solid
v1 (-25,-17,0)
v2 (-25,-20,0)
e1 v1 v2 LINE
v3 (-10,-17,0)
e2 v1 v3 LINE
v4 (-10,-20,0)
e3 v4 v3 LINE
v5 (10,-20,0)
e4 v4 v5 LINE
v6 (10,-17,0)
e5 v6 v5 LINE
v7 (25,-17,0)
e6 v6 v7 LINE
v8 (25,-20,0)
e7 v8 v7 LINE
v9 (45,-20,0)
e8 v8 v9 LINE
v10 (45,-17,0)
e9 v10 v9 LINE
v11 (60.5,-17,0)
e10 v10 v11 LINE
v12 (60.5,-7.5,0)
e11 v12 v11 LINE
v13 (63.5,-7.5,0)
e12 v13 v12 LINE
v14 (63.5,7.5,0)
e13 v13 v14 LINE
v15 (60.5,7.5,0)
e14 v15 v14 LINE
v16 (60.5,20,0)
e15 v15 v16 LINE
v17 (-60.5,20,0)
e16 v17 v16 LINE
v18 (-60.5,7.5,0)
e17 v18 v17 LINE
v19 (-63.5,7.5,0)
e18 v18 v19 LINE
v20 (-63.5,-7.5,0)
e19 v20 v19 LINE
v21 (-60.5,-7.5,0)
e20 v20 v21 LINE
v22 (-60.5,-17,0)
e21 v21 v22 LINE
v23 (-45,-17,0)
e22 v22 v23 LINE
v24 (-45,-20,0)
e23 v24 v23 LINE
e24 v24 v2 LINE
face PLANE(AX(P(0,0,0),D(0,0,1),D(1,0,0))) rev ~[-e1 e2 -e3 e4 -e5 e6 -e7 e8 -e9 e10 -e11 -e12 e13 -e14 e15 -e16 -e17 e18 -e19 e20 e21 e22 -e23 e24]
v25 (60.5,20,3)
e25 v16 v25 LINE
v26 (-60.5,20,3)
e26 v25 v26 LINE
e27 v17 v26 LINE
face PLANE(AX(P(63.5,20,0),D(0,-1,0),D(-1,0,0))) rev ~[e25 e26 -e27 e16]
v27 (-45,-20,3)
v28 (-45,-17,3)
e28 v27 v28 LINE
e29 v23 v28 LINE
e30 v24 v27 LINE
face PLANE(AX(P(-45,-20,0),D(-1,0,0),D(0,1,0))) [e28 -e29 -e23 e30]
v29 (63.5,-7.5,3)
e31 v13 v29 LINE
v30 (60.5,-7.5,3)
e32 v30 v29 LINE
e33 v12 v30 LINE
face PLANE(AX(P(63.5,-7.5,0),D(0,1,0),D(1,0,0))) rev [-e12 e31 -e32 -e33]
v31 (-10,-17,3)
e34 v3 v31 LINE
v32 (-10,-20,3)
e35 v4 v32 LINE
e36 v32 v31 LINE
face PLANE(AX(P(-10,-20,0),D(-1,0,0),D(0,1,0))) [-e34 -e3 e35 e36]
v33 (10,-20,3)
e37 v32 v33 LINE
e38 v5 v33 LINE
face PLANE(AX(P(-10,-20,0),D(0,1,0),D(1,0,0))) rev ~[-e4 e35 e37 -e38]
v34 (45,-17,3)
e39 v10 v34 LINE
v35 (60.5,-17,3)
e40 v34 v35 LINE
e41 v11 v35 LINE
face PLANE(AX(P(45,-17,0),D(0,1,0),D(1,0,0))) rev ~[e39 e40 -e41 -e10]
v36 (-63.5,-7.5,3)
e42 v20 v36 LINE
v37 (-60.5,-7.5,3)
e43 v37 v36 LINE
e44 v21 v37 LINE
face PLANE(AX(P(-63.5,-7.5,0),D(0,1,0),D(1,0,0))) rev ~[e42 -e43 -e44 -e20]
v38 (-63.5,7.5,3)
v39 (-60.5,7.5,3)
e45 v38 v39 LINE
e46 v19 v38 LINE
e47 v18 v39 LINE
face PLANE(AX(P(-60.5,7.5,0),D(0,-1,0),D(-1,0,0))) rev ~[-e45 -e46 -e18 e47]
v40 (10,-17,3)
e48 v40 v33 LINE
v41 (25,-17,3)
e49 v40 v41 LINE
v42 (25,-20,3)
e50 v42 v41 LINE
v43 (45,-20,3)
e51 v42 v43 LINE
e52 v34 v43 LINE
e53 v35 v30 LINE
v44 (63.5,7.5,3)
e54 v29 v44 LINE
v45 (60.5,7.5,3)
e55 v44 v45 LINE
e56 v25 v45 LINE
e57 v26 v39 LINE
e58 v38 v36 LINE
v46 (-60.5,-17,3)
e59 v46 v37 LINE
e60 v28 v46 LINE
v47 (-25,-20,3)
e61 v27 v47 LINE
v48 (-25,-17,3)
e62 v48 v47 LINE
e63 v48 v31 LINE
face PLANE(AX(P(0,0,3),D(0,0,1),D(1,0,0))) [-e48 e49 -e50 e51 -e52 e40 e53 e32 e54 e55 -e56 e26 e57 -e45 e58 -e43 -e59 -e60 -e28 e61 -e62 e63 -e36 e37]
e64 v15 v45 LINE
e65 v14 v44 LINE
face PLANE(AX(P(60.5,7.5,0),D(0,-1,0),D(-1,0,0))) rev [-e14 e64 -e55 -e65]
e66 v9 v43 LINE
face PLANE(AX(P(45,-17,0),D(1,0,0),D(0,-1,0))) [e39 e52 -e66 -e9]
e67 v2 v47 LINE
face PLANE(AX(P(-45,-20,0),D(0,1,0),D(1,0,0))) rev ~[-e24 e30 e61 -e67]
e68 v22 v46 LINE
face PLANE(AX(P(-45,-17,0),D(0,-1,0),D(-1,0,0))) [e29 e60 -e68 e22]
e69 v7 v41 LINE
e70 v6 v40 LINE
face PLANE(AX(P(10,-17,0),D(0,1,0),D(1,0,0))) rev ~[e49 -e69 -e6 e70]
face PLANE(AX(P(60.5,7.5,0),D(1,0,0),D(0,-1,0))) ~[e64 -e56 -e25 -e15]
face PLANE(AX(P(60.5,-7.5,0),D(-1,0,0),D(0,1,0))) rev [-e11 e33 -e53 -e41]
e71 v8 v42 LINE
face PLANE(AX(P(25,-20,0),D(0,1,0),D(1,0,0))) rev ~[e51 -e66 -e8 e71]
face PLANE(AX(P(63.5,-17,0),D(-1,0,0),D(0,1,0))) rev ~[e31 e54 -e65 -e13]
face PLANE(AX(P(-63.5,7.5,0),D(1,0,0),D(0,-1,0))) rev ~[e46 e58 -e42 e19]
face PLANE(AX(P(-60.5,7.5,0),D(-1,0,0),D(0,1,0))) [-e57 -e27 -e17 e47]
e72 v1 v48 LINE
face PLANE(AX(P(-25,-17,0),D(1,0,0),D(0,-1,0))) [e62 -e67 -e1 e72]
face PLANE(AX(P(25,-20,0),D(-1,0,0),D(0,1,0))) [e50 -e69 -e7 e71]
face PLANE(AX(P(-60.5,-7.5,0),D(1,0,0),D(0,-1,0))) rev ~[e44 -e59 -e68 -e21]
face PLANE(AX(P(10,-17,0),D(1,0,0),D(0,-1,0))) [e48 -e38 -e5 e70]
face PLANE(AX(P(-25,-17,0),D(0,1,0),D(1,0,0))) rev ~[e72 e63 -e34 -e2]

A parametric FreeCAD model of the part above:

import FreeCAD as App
import Part
import Sketcher
from FreeCAD import Vector
Q = App.Units.Quantity

doc = App.newDocument("Part")
body = doc.addObject("PartDesign::Body", "Body")

# Sketch on XY plane
sketch1 = body.newObject("Sketcher::SketchObject", "Sketch")
sketch1.AttachmentSupport = (doc.getObject("XY_Plane"), [""])
sketch1.MapMode = "FlatFace"
sketch1.addGeometry(Part.LineSegment(Vector(-45, -17, 0), Vector(-45, -20, 0)), False)
sketch1.addGeometry(Part.LineSegment(Vector(-45, -20, 0), Vector(-25, -20, 0)), False)
sketch1.addGeometry(Part.LineSegment(Vector(-25, -20, 0), Vector(-25, -17, 0)), False)
sketch1.addGeometry(Part.LineSegment(Vector(-25, -17, 0), Vector(-10, -17, 0)), False)
sketch1.addGeometry(Part.LineSegment(Vector(-10, -17, 0), Vector(-10, -20, 0)), False)
sketch1.addGeometry(Part.LineSegment(Vector(-10, -20, 0), Vector(10, -20, 0)), False)
sketch1.addGeometry(Part.LineSegment(Vector(10, -20, 0), Vector(10, -17, 0)), False)
sketch1.addGeometry(Part.LineSegment(Vector(10, -17, 0), Vector(25, -17, 0)), False)
sketch1.addGeometry(Part.LineSegment(Vector(25, -17, 0), Vector(25, -20, 0)), False)
sketch1.addGeometry(Part.LineSegment(Vector(25, -20, 0), Vector(45, -20, 0)), False)
sketch1.addGeometry(Part.LineSegment(Vector(45, -20, 0), Vector(45, -17, 0)), False)
sketch1.addGeometry(Part.LineSegment(Vector(45, -17, 0), Vector(63.5, -17, 0)), False)
sketch1.addGeometry(Part.LineSegment(Vector(63.5, -17, 0), Vector(63.5, 20, 0)), False)
sketch1.addGeometry(Part.LineSegment(Vector(63.5, 20, 0), Vector(-63.5, 20, 0)), False)
sketch1.addGeometry(Part.LineSegment(Vector(-63.5, 20, 0), Vector(-63.5, -17, 0)), False)
sketch1.addGeometry(Part.LineSegment(Vector(-63.5, -17, 0), Vector(-45, -17, 0)), False)
sketch1.addConstraint(Sketcher.Constraint("Coincident", 0, 2, 1, 1))
sketch1.addConstraint(Sketcher.Constraint("Coincident", 1, 2, 2, 1))
sketch1.addConstraint(Sketcher.Constraint("Coincident", 2, 2, 3, 1))
sketch1.addConstraint(Sketcher.Constraint("Coincident", 3, 2, 4, 1))
sketch1.addConstraint(Sketcher.Constraint("Coincident", 4, 2, 5, 1))
sketch1.addConstraint(Sketcher.Constraint("Coincident", 5, 2, 6, 1))
sketch1.addConstraint(Sketcher.Constraint("Coincident", 6, 2, 7, 1))
sketch1.addConstraint(Sketcher.Constraint("Coincident", 7, 2, 8, 1))
sketch1.addConstraint(Sketcher.Constraint("Coincident", 8, 2, 9, 1))
sketch1.addConstraint(Sketcher.Constraint("Coincident", 9, 2, 10, 1))
sketch1.addConstraint(Sketcher.Constraint("Coincident", 10, 2, 11, 1))
sketch1.addConstraint(Sketcher.Constraint("Coincident", 11, 2, 12, 1))
sketch1.addConstraint(Sketcher.Constraint("Coincident", 12, 2, 13, 1))
sketch1.addConstraint(Sketcher.Constraint("Coincident", 13, 2, 14, 1))
sketch1.addConstraint(Sketcher.Constraint("Coincident", 14, 2, 15, 1))
sketch1.addConstraint(Sketcher.Constraint("Coincident", 15, 2, 0, 1))
sketch1.addConstraint(Sketcher.Constraint("Vertical", 0))
sketch1.addConstraint(Sketcher.Constraint("Horizontal", 1))
sketch1.addConstraint(Sketcher.Constraint("Vertical", 2))
sketch1.addConstraint(Sketcher.Constraint("Horizontal", 3))
sketch1.addConstraint(Sketcher.Constraint("Vertical", 4))
sketch1.addConstraint(Sketcher.Constraint("Horizontal", 5))
sketch1.addConstraint(Sketcher.Constraint("Vertical", 6))
sketch1.addConstraint(Sketcher.Constraint("Horizontal", 7))
sketch1.addConstraint(Sketcher.Constraint("Vertical", 8))
sketch1.addConstraint(Sketcher.Constraint("Horizontal", 9))
sketch1.addConstraint(Sketcher.Constraint("Vertical", 10))
sketch1.addConstraint(Sketcher.Constraint("Horizontal", 11))
sketch1.addConstraint(Sketcher.Constraint("Vertical", 12))
sketch1.addConstraint(Sketcher.Constraint("Horizontal", 13))
sketch1.addConstraint(Sketcher.Constraint("Vertical", 14))
sketch1.addConstraint(Sketcher.Constraint("Horizontal", 15))
sketch1.addConstraint(Sketcher.Constraint("Symmetric", 3, 2, 6, 2, -2))
sketch1.addConstraint(Sketcher.Constraint("Symmetric", 1, 2, 8, 2, -2))
sketch1.addConstraint(Sketcher.Constraint("Symmetric", 11, 2, 14, 2, -2))
sketch1.addConstraint(Sketcher.Constraint("Horizontal", 1, 2, 4, 2))
sketch1.addConstraint(Sketcher.Constraint("Horizontal", 7, 2, 10, 2))
sketch1.addConstraint(Sketcher.Constraint("Equal", 1, 5))
sketch1.addConstraint(Sketcher.Constraint("Equal", 5, 9))
sketch1.addConstraint(Sketcher.Constraint("DistanceX", 1, 1, 1, 2, Q("20 mm")))
sketch1.addConstraint(Sketcher.Constraint("DistanceX", 3, 1, 3, 2, Q("15 mm")))
sketch1.addConstraint(Sketcher.Constraint("DistanceX", 13, 2, 13, 1, Q("127 mm")))
sketch1.addConstraint(Sketcher.Constraint("DistanceY", 0, 2, 0, 1, Q("3 mm")))
sketch1.addConstraint(Sketcher.Constraint("DistanceY", 0, 2, -1, 1, Q("20 mm")))
sketch1.addConstraint(Sketcher.Constraint("DistanceY", -1, 1, 12, 2, Q("20 mm")))
pad1 = body.newObject("PartDesign::Pad", "Pad")
pad1.Profile = sketch1
pad1.Length = 3

# Sketch on XY plane
sketch2 = body.newObject("Sketcher::SketchObject", "Sketch001")
sketch2.AttachmentSupport = (doc.getObject("XY_Plane"), [""])
sketch2.MapMode = "FlatFace"
sketch2.addGeometry(Part.LineSegment(Vector(-63.5, -7.5, 0), Vector(-63.5, -17, 0)), False)
sketch2.addGeometry(Part.LineSegment(Vector(-63.5, -17, 0), Vector(-60.5, -17, 0)), False)
sketch2.addGeometry(Part.LineSegment(Vector(-60.5, -17, 0), Vector(-60.5, -7.5, 0)), False)
sketch2.addGeometry(Part.LineSegment(Vector(-60.5, -7.5, 0), Vector(-63.5, -7.5, 0)), False)
sketch2.addGeometry(Part.LineSegment(Vector(-63.5, 20, 0), Vector(-63.5, 7.5, 0)), False)
sketch2.addGeometry(Part.LineSegment(Vector(-63.5, 7.5, 0), Vector(-60.5, 7.5, 0)), False)
sketch2.addGeometry(Part.LineSegment(Vector(-60.5, 7.5, 0), Vector(-60.5, 20, 0)), False)
sketch2.addGeometry(Part.LineSegment(Vector(-60.5, 20, 0), Vector(-63.5, 20, 0)), False)
sketch2.addConstraint(Sketcher.Constraint("Coincident", 0, 2, 1, 1))
sketch2.addConstraint(Sketcher.Constraint("Coincident", 1, 2, 2, 1))
sketch2.addConstraint(Sketcher.Constraint("Coincident", 2, 2, 3, 1))
sketch2.addConstraint(Sketcher.Constraint("Coincident", 3, 2, 0, 1))
sketch2.addConstraint(Sketcher.Constraint("Coincident", 4, 2, 5, 1))
sketch2.addConstraint(Sketcher.Constraint("Coincident", 5, 2, 6, 1))
sketch2.addConstraint(Sketcher.Constraint("Coincident", 6, 2, 7, 1))
sketch2.addConstraint(Sketcher.Constraint("Coincident", 7, 2, 4, 1))
sketch2.addConstraint(Sketcher.Constraint("Vertical", 0))
sketch2.addConstraint(Sketcher.Constraint("Horizontal", 1))
sketch2.addConstraint(Sketcher.Constraint("Vertical", 2))
sketch2.addConstraint(Sketcher.Constraint("Horizontal", 3))
sketch2.addConstraint(Sketcher.Constraint("Vertical", 4))
sketch2.addConstraint(Sketcher.Constraint("Horizontal", 5))
sketch2.addConstraint(Sketcher.Constraint("Vertical", 6))
sketch2.addConstraint(Sketcher.Constraint("Horizontal", 7))
sketch2.addConstraint(Sketcher.Constraint("Symmetric", 3, 2, 4, 2, -1))
sketch2.addConstraint(Sketcher.Constraint("Vertical", 2, 2, 5, 2))
sketch2.addConstraint(Sketcher.Constraint("DistanceX", 1, 1, 1, 2, Q("3 mm")))
sketch2.addConstraint(Sketcher.Constraint("DistanceY", -1, 1, 6, 2, Q("20 mm")))
sketch2.addConstraint(Sketcher.Constraint("DistanceY", 3, 2, 4, 2, Q("15 mm")))
sketch2.addConstraint(Sketcher.Constraint("DistanceY", 0, 2, 0, 1, Q("9.5 mm")))
sketch2.addConstraint(Sketcher.Constraint("DistanceX", 0, 2, -1, 1, Q("63.5 mm")))
pocket1 = body.newObject("PartDesign::Pocket", "Pocket")
pocket1.Profile = sketch2
pocket1.Type = "ThroughAll"
pocket1.Reversed = True
doc.recompute()

mirrored = body.newObject("PartDesign::Mirrored", "Mirrored")
mirrored.Originals = [pocket1]
mirrored.MirrorPlane = (doc.getObject("YZ_Plane"), [""])
body.Tip = mirrored

doc.recompute()
